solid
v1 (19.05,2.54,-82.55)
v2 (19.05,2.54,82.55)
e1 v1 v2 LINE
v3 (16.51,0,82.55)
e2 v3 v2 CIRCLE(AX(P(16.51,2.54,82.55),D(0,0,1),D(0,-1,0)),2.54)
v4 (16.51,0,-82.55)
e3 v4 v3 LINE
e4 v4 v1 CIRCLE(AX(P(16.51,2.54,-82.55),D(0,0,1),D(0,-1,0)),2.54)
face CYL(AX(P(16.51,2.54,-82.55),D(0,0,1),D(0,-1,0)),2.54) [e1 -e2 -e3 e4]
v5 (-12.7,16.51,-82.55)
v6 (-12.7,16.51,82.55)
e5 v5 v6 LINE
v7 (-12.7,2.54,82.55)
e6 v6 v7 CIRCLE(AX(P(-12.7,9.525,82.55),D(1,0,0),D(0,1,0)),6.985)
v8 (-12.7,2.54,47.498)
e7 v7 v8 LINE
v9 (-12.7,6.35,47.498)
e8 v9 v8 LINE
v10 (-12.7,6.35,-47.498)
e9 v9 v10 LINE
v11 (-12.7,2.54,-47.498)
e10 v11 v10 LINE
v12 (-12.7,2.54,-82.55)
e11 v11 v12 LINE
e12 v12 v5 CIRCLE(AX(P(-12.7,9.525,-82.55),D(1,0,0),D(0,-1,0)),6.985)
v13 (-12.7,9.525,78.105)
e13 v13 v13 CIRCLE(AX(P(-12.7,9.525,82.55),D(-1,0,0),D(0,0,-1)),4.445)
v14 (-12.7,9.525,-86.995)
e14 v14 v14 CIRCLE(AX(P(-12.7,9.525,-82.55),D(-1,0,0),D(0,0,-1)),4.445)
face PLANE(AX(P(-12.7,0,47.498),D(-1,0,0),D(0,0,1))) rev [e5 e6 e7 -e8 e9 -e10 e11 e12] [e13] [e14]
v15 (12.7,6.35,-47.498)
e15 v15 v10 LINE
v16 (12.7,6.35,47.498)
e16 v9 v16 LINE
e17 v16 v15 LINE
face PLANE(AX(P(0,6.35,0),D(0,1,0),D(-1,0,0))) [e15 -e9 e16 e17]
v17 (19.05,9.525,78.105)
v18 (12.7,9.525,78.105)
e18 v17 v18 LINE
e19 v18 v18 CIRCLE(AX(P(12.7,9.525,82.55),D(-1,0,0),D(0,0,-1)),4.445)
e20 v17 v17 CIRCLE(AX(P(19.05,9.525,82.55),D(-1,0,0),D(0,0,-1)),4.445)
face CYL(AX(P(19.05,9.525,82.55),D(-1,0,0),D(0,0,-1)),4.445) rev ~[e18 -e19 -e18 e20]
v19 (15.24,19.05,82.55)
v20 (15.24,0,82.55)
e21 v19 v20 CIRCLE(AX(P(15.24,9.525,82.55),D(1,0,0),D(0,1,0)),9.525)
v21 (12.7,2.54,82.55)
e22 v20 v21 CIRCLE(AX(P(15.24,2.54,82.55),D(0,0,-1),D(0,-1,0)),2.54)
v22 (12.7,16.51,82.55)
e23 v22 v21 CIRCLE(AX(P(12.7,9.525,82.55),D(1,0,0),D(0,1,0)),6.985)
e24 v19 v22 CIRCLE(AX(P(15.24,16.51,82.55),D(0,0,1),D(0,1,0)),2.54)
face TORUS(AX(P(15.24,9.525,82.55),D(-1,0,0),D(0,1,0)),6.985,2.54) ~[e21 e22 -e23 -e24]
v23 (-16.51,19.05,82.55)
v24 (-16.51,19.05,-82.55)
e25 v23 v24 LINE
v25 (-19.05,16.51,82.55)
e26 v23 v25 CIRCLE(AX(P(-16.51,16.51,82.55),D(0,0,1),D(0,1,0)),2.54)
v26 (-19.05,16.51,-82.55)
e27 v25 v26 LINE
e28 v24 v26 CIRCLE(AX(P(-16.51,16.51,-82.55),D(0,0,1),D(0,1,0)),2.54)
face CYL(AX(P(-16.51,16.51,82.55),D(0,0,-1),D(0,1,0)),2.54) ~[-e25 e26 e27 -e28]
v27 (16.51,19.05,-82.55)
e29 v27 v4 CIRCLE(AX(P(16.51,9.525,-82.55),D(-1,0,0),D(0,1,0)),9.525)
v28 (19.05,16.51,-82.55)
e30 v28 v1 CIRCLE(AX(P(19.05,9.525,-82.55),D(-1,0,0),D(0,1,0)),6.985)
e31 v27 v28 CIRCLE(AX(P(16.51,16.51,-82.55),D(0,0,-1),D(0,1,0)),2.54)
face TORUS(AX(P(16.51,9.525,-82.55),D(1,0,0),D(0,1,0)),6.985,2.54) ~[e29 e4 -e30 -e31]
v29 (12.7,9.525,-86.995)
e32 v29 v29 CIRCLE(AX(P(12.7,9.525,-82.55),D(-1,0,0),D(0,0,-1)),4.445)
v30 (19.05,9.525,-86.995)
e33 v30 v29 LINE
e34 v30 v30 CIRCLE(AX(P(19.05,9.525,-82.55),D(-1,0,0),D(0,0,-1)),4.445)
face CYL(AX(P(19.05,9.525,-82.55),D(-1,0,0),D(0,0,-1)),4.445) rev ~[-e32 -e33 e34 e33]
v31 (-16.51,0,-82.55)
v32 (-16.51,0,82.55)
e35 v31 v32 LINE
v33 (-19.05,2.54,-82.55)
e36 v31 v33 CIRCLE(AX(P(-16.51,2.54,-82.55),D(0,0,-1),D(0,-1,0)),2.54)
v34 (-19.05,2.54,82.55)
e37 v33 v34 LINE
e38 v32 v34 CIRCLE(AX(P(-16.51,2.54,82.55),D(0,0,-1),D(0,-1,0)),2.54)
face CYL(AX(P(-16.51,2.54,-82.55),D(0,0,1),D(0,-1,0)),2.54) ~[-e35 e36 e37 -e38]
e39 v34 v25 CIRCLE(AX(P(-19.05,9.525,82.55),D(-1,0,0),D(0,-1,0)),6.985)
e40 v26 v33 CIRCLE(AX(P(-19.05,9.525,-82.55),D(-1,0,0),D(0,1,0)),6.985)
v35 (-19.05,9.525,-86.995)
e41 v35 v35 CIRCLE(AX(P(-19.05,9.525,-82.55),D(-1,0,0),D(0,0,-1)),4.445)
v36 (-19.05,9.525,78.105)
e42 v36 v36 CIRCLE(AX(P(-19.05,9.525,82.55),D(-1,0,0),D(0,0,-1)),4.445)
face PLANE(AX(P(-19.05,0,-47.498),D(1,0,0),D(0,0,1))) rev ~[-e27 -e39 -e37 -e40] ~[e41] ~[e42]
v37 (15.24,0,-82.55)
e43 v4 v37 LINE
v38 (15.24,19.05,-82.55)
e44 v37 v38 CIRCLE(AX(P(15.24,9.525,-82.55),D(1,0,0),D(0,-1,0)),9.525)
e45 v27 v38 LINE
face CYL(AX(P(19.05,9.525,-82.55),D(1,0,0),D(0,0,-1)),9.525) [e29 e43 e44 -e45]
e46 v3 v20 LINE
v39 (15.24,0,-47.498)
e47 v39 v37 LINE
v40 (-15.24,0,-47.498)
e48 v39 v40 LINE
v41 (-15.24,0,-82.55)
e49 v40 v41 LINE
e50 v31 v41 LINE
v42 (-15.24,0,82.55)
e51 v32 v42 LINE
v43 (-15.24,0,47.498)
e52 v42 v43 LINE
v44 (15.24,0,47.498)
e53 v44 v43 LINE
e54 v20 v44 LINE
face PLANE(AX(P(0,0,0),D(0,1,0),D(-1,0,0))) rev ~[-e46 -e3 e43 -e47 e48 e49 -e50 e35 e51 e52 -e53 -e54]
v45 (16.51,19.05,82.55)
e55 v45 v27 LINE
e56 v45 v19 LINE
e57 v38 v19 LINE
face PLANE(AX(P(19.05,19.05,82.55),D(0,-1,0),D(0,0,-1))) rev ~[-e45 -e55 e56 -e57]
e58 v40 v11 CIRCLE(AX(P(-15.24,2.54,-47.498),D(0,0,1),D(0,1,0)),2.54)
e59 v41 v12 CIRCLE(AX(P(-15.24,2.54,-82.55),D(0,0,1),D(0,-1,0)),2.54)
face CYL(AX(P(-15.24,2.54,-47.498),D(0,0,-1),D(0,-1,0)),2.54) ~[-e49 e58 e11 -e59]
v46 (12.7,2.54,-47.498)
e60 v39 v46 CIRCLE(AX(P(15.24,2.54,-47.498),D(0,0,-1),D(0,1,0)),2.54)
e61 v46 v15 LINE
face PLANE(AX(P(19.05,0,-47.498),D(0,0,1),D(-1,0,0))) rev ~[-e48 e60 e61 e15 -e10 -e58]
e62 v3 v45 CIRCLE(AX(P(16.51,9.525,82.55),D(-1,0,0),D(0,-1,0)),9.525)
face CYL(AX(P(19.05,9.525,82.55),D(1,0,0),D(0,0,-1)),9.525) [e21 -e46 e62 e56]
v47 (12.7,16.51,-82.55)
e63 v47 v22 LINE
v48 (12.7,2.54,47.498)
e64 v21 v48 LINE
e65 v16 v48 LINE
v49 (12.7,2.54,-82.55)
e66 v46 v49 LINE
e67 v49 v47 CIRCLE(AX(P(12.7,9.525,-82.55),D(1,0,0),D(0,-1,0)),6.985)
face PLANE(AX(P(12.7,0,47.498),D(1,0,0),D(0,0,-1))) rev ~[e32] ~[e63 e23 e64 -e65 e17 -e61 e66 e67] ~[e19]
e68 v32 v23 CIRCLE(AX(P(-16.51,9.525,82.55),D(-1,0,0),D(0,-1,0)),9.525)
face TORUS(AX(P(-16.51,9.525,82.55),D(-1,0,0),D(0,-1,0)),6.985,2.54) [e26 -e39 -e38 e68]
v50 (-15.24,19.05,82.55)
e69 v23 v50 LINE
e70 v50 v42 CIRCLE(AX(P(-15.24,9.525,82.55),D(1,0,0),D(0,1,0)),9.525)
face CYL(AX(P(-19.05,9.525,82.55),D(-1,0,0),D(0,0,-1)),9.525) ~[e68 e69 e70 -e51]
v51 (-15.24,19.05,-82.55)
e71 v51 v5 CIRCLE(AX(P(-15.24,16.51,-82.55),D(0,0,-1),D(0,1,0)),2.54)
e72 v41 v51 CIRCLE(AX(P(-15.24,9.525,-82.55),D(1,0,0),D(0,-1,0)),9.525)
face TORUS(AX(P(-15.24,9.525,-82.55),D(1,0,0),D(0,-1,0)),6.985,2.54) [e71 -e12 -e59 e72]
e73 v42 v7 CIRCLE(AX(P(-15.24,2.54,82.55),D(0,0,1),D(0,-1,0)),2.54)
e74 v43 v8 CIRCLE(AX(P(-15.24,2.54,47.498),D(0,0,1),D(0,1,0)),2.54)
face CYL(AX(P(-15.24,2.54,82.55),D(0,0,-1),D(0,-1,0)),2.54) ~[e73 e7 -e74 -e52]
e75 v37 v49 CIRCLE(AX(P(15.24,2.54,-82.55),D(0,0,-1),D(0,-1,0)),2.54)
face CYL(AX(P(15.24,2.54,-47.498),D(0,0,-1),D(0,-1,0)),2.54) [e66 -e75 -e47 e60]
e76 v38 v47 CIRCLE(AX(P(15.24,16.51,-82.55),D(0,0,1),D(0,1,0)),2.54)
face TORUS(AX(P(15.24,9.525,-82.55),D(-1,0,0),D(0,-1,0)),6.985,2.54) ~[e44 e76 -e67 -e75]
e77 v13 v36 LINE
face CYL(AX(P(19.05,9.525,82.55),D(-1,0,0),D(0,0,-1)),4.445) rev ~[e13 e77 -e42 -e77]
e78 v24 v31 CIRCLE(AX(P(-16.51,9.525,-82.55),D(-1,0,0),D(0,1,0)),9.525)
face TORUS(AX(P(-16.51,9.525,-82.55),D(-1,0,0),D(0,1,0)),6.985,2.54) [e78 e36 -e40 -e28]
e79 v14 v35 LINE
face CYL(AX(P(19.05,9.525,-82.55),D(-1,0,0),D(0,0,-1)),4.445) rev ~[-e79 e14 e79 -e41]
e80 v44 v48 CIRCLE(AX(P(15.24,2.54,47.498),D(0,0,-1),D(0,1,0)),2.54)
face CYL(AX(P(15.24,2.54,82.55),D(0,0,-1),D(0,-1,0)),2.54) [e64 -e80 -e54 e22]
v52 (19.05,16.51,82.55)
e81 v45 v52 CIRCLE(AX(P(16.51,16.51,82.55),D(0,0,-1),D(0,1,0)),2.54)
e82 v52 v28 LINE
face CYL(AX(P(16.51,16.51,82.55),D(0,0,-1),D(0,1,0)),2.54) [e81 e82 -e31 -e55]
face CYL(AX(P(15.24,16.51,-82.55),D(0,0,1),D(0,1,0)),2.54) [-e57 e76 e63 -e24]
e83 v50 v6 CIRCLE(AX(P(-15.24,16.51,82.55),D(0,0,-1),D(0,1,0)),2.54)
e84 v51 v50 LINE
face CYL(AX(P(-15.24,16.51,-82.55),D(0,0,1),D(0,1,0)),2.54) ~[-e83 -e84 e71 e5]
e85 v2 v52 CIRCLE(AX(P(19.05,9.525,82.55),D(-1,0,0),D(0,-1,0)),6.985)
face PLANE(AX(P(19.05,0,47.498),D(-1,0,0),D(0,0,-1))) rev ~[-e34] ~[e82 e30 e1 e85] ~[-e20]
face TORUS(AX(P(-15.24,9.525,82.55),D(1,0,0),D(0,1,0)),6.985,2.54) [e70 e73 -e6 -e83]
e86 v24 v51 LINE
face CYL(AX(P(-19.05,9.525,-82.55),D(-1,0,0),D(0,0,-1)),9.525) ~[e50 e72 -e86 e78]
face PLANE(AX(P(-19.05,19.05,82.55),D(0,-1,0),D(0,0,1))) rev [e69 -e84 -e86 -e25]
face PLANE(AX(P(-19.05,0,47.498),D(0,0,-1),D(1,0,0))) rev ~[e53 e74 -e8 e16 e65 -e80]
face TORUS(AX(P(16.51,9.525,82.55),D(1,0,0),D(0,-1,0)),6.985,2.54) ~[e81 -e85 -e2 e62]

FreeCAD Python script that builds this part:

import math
import FreeCAD as App
import Part
import Sketcher

V = App.Vector
Q = App.Units.Quantity


def edges_at(feature, points):
    """Names of the edges that pass closest to the given points."""
    edges = feature.Shape.Edges
    near = lambda p: min(range(len(edges)), key=lambda i: edges[i].distToShape(Part.Vertex(*p))[0])
    return sorted({f"Edge{near(p) + 1}" for p in points})


def add_polygon(sketch, points):
    """Adds a closed chain of lines whose ends are joined by coincident constraints."""
    first, n = sketch.GeometryCount, len(points)
    for a, b in zip(points, points[1:] + points[:1]):
        sketch.addGeometry(Part.LineSegment(App.Vector(*a, 0), App.Vector(*b, 0)), False)
    for i in range(n):
        sketch.addConstraint(Sketcher.Constraint("Coincident", first + i, 2, first + (i + 1) % n, 1))

doc = App.newDocument("Part")
params = doc.addObject("Spreadsheet::Sheet", "Params")
for row, (alias, value) in enumerate([
    ("sketch1_width", "1.5 in"),
    ("sketch1_height", "3.74 in"),
    ("pad1_length", "0.25 in"),
    ("sketch2_height", "6.5 in"),
    ("sketch2_radius", "0.375 in"),
    ("pad2_length", "0.25 in"),
    ("fillet_radius", "0.1 in"),
    ("sketch3_diameter", "0.35 in"),
    ("hole_diameter", "0.35 in"),
], start=1):
    params.set(f"A{row}", alias)
    params.set(f"B{row}", "=" + value)
    params.setAlias(f"B{row}", alias)

body = doc.addObject("PartDesign::Body", "Body")

# Sketch on XZ plane
sketch1 = body.newObject("Sketcher::SketchObject", "Sketch")
sketch1.AttachmentSupport = (doc.getObject("XZ_Plane"), [""])
sketch1.MapMode = "FlatFace"
add_polygon(sketch1, [(-19, -47), (-19, 47), (19, 47), (19, -47)])  # lines 0-3
sketch1.addConstraint([
    Sketcher.Constraint("Vertical", 0),
    Sketcher.Constraint("Horizontal", 1),
    Sketcher.Constraint("Vertical", 2),
    Sketcher.Constraint("Horizontal", 3),
    Sketcher.Constraint("Symmetric", 0, 2, 2, 2, -1, 1),
    Sketcher.Constraint("DistanceX", 1, 1, 1, 2, Q("1.5 in")),
    Sketcher.Constraint("DistanceY", 0, 1, 0, 2, Q("3.74 in")),
])
sketch1.setExpression("Constraints[9]", "Params.sketch1_width")
sketch1.setExpression("Constraints[10]", "Params.sketch1_height")
pad1 = body.newObject("PartDesign::Pad", "Pad")
pad1.Profile = sketch1
pad1.setExpression("Length", "Params.pad1_length")
pad1.Reversed = True

# Sketch on YZ plane
sketch2 = body.newObject("Sketcher::SketchObject", "Sketch001")
sketch2.AttachmentSupport = (doc.getObject("YZ_Plane"), [""])
sketch2.MapMode = "FlatFace"
sketch2.AttachmentOffset = App.Placement(V(0, 0, 0.75 * 25.4), App.Rotation())
sketch2.addGeometry([
    Part.LineSegment(V(19, -83, 0), V(19, 83, 0)),
    Part.ArcOfCircle(Part.Circle(V(10, 83, 0), V(0, 0, 1), 10), math.radians(0), math.radians(180)),
    Part.LineSegment(V(0, 83, 0), V(0, -83, 0)),
    Part.ArcOfCircle(Part.Circle(V(10, -83, 0), V(0, 0, 1), 10), math.radians(180), math.radians(360)),
], False)
sketch2.addConstraint([
    Sketcher.Constraint("Tangent", 0, 2, 1, 1),
    Sketcher.Constraint("Tangent", 1, 2, 2, 1),
    Sketcher.Constraint("Tangent", 2, 2, 3, 1),
    Sketcher.Constraint("Tangent", 3, 2, 0, 1),
    Sketcher.Constraint("Vertical", 0),
    Sketcher.Constraint("Vertical", 2),
    Sketcher.Constraint("Symmetric", 1, 2, 2, 2, -1, 1),
    Sketcher.Constraint("DistanceY", 0, 1, 0, 2, Q("6.5 in")),
    Sketcher.Constraint("Radius", 1, Q("0.375 in")),
])
sketch2.setExpression("Constraints[7]", "Params.sketch2_height")
sketch2.setExpression("Constraints[8]", "Params.sketch2_radius")
pad2 = body.newObject("PartDesign::Pad", "Pad001")
pad2.Profile = sketch2
pad2.setExpression("Length", "Params.pad2_length")
pad2.Reversed = True
doc.recompute()

fillet = body.newObject("PartDesign::Fillet", "Fillet")
fillet.Base = (pad2, edges_at(pad2, [
    (12.7, 0, -65.024),
    (12.7, 19.05, 0),
    (12.7, 9.525, 92.075),
    (12.7, 0, 65.024),
    (12.7, 9.525, -92.075),
    (19.05, 19.05, 0),
    (19.05, 9.525, 92.075),
    (19.05, 0, 0),
    (19.05, 9.525, -92.075),
]))
fillet.setExpression("Radius", "Params.fillet_radius")
doc.recompute()

mirrored = body.newObject("PartDesign::Mirrored", "Mirrored")
mirrored.Originals = [pad2, fillet]
mirrored.MirrorPlane = (doc.getObject("YZ_Plane"), [""])
body.Tip = mirrored

# Sketch on YZ plane
sketch3 = body.newObject("Sketcher::SketchObject", "Sketch002")
sketch3.AttachmentSupport = (doc.getObject("YZ_Plane"), [""])
sketch3.MapMode = "FlatFace"
sketch3.AttachmentOffset = App.Placement(V(0, 0, 0.75 * 25.4), App.Rotation())
sketch3.addGeometry([
    Part.Circle(V(9.5, 82.5, 0), V(0, 0, 1), 4.4),
    Part.Circle(V(9.5, -82.5, 0), V(0, 0, 1), 4.4),
], False)
sketch3.addConstraint([
    Sketcher.Constraint("Equal", 0, 1),
    Sketcher.Constraint("Symmetric", 0, 3, 1, 3, -1),
    Sketcher.Constraint("Diameter", 0, Q("0.35 in")),
    Sketcher.Constraint("DistanceY", 1, 3, 0, 3, Q("6.5 in")),
    Sketcher.Constraint("DistanceX", -1, 1, 0, 3, Q("0.375 in")),
])
sketch3.setExpression("Constraints[2]", "Params.sketch3_diameter")
doc.recompute()
hole = body.newObject("PartDesign::Hole", "Hole")
hole.Profile = sketch3
hole.ThreadType = "None"
hole.setExpression("Diameter", "Params.hole_diameter")
hole.DepthType = "ThroughAll"

doc.recompute()
